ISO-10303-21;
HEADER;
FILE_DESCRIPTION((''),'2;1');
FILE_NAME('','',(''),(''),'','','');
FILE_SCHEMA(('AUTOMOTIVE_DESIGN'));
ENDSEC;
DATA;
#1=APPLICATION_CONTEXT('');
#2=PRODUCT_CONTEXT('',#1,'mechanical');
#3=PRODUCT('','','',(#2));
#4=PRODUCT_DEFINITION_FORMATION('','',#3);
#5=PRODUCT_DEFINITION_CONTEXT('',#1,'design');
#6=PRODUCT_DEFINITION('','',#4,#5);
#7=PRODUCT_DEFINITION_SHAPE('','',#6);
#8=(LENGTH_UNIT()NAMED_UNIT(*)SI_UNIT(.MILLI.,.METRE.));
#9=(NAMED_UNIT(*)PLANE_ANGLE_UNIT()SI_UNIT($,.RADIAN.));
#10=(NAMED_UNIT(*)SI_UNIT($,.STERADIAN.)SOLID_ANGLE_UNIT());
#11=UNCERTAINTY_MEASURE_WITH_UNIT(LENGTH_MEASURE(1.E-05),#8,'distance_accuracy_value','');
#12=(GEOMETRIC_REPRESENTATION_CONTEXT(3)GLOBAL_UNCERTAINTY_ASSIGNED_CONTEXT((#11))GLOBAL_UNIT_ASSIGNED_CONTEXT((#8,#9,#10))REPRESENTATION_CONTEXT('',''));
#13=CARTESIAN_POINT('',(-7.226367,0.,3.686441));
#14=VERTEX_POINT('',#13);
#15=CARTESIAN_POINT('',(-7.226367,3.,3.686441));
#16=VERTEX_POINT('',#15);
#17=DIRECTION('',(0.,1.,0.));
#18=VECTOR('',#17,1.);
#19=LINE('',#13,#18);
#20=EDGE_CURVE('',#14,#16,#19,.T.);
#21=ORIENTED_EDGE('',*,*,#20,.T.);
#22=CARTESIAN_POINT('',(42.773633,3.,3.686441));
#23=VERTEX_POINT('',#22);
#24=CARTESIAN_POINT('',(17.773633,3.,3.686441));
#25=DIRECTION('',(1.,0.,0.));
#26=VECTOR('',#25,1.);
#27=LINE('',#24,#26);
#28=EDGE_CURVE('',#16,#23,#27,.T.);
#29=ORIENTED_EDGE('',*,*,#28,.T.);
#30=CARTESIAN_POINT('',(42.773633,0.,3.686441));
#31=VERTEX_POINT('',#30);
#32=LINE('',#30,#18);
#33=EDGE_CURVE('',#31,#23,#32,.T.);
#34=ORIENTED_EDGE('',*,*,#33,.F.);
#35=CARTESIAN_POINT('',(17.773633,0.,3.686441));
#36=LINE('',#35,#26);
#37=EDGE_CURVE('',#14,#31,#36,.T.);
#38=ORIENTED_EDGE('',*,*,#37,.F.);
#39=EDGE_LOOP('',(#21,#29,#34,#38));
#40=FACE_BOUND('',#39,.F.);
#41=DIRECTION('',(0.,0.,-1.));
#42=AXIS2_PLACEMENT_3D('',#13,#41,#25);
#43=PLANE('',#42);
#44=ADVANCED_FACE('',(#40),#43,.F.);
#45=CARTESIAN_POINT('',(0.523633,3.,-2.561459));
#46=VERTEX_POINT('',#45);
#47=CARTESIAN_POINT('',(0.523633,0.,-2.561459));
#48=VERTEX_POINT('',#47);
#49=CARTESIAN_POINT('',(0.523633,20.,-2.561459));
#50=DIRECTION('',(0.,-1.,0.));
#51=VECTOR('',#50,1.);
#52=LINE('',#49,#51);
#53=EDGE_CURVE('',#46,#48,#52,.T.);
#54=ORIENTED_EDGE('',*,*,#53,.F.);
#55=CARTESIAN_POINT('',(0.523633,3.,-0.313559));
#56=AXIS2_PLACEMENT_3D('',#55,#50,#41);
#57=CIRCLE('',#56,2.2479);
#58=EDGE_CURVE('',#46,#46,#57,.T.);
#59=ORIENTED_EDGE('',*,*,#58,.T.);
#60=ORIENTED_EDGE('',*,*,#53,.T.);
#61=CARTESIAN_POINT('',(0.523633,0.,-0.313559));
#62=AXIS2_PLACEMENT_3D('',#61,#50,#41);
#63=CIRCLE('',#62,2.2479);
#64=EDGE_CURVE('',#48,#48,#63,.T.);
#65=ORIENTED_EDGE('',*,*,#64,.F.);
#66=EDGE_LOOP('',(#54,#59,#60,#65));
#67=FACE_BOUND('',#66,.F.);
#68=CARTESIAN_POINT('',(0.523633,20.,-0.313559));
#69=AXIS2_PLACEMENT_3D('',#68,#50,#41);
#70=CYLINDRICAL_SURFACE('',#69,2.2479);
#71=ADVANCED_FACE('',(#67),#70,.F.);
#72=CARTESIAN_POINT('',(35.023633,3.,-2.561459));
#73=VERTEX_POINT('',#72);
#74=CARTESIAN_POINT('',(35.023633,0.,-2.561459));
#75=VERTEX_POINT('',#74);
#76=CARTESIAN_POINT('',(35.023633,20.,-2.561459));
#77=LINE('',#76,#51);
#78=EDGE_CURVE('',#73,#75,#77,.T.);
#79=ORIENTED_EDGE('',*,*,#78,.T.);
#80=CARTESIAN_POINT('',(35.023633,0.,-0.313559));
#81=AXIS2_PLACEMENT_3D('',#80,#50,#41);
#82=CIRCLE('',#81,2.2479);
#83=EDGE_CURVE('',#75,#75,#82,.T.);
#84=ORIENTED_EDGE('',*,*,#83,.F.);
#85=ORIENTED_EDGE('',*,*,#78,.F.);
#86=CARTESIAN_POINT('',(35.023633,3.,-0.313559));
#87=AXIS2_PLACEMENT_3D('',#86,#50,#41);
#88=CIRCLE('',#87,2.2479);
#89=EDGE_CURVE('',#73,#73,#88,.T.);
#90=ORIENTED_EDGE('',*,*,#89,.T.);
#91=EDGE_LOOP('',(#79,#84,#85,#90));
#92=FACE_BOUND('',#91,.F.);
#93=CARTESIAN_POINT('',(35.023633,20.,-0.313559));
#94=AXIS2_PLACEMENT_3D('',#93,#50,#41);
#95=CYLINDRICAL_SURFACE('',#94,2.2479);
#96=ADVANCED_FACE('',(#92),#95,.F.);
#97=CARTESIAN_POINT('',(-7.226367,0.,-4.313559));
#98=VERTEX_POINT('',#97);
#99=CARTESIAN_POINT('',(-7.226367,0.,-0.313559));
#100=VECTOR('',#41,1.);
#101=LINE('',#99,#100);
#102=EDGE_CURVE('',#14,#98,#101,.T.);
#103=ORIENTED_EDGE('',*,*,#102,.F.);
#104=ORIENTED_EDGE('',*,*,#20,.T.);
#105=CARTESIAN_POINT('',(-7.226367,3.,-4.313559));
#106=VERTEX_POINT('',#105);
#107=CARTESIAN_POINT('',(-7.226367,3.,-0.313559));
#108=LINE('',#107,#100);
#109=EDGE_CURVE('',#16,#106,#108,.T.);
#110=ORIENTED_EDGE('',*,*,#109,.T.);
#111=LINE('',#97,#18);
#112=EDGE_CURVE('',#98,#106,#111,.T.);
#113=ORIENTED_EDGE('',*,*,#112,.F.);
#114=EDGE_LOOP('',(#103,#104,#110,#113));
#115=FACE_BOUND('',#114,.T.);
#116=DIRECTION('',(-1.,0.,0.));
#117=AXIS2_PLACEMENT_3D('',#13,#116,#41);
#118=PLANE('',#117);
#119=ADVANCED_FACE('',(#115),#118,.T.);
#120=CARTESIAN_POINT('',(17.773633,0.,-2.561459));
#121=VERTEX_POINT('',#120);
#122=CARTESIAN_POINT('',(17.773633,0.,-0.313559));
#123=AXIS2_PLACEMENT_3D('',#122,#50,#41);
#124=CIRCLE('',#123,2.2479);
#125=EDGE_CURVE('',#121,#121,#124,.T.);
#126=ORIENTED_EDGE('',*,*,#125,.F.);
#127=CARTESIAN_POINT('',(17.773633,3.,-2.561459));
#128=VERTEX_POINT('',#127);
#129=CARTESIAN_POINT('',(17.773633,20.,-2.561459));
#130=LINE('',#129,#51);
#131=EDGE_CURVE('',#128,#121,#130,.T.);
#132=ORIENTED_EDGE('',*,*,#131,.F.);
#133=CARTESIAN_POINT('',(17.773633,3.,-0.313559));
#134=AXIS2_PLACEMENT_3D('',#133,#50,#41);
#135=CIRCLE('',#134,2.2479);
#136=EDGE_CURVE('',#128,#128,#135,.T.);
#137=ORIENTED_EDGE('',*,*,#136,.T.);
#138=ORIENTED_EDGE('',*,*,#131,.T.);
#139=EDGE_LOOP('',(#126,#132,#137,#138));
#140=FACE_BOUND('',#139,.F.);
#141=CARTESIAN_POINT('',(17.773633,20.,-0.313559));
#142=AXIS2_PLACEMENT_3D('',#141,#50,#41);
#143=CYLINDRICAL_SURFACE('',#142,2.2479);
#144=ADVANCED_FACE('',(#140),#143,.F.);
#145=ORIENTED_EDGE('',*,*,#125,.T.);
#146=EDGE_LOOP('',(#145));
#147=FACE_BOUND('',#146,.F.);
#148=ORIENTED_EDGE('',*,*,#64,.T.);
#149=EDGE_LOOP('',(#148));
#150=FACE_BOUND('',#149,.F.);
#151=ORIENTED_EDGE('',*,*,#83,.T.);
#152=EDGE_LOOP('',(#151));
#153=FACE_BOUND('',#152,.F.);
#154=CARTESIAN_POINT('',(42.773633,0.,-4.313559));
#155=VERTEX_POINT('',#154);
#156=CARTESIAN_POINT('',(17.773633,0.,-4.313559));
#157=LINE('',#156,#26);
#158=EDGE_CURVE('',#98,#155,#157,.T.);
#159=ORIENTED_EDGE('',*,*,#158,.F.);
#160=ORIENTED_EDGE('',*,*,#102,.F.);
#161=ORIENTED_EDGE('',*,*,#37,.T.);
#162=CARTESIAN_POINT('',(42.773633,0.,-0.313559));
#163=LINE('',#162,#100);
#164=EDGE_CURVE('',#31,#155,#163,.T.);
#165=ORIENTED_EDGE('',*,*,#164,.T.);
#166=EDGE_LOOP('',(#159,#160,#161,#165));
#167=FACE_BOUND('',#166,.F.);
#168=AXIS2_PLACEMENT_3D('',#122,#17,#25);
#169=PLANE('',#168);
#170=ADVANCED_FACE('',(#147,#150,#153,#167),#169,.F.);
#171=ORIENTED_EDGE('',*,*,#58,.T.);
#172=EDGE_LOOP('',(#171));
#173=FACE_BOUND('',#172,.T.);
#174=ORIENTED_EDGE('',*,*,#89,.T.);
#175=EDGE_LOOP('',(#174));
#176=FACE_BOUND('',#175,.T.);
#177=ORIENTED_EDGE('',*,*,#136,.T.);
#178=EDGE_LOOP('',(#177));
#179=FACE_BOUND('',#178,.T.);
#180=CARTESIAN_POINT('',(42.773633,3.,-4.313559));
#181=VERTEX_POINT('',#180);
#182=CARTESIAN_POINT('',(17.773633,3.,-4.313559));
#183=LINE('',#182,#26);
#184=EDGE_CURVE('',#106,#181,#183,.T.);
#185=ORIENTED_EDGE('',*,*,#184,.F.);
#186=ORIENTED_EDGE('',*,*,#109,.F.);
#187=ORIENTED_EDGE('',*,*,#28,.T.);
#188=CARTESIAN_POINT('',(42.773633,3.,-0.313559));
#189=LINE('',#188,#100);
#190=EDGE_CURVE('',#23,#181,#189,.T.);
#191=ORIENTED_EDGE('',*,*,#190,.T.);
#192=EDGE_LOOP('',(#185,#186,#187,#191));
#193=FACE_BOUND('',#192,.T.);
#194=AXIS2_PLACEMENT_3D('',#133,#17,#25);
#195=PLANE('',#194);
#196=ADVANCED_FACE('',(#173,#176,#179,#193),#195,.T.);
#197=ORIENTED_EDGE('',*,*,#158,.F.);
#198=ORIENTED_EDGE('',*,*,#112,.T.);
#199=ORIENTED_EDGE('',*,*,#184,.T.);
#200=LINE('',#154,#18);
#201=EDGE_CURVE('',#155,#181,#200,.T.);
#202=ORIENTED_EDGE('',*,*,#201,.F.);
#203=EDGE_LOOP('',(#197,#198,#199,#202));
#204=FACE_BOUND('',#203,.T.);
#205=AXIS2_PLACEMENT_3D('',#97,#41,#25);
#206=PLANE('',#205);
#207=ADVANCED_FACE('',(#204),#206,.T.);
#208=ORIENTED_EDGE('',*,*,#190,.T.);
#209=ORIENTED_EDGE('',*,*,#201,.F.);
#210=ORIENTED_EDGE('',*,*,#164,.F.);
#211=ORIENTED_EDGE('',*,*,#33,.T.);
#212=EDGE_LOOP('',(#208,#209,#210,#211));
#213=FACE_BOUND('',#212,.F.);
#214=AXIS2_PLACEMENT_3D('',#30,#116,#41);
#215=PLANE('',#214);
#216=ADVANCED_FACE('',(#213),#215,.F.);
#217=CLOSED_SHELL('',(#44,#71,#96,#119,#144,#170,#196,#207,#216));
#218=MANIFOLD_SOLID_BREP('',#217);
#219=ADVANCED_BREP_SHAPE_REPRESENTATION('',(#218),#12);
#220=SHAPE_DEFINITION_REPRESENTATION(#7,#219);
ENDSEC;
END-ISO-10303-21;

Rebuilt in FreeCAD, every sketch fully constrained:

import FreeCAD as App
import Part
import Sketcher

V = App.Vector
Q = App.Units.Quantity

doc = App.newDocument("Part")
body = doc.addObject("PartDesign::Body", "Body")

# Sketch on XZ plane
sketch1 = body.newObject("Sketcher::SketchObject", "Sketch")
sketch1.AttachmentSupport = (doc.getObject("XZ_Plane"), [""])
sketch1.MapMode = "FlatFace"
sketch1.addGeometry([
    Part.LineSegment(V(-7.226367, -4.313559, 0), V(-7.226367, 3.686441, 0)),
    Part.LineSegment(V(-7.226367, 3.686441, 0), V(42.773633, 3.686441, 0)),
    Part.LineSegment(V(42.773633, 3.686441, 0), V(42.773633, -4.313559, 0)),
    Part.LineSegment(V(42.773633, -4.313559, 0), V(-7.226367, -4.313559, 0)),
], False)
sketch1.addConstraint([
    Sketcher.Constraint("Coincident", 0, 2, 1, 1),
    Sketcher.Constraint("Coincident", 1, 2, 2, 1),
    Sketcher.Constraint("Coincident", 2, 2, 3, 1),
    Sketcher.Constraint("Coincident", 3, 2, 0, 1),
    Sketcher.Constraint("Vertical", 0),
    Sketcher.Constraint("Horizontal", 1),
    Sketcher.Constraint("Vertical", 2),
    Sketcher.Constraint("Horizontal", 3),
    Sketcher.Constraint("DistanceX", 1, 1, 1, 2, Q("50 mm")),
    Sketcher.Constraint("DistanceY", 0, 1, 0, 2, Q("8 mm")),
    Sketcher.Constraint("DistanceY", -1, 1, 0, 2, Q("3.686441 mm")),
    Sketcher.Constraint("DistanceX", 0, 2, -1, 1, Q("7.226367 mm")),
])
pad1 = body.newObject("PartDesign::Pad", "Pad")
pad1.Profile = sketch1
pad1.Length = 3
pad1.Reversed = True

# Sketch on XZ plane
sketch2 = body.newObject("Sketcher::SketchObject", "Sketch001")
sketch2.AttachmentSupport = (doc.getObject("XZ_Plane"), [""])
sketch2.MapMode = "FlatFace"
sketch2.AttachmentOffset = App.Placement(V(0, 0, -3), App.Rotation())
sketch2.addGeometry([
    Part.Circle(V(0.523633, -0.313559, 0), V(0, 0, 1), 2.2479),
    Part.Circle(V(35.023633, -0.313559, 0), V(0, 0, 1), 2.2479),
    Part.Circle(V(17.773633, -0.313559, 0), V(0, 0, 1), 2.2479),
], False)
sketch2.addConstraint([
    Sketcher.Constraint("Equal", 0, 1),
    Sketcher.Constraint("Equal", 1, 2),
    Sketcher.Constraint("Horizontal", 0, 3, 1, 3),
    Sketcher.Constraint("Horizontal", 1, 3, 2, 3),
    Sketcher.Constraint("Diameter", 0, Q("4.4958 mm")),
    Sketcher.Constraint("DistanceX", 0, 3, 1, 3, Q("34.5 mm")),
    Sketcher.Constraint("DistanceX", 2, 3, 1, 3, Q("17.25 mm")),
    Sketcher.Constraint("DistanceY", 0, 3, -1, 1, Q("0.313559 mm")),
    Sketcher.Constraint("DistanceX", -1, 1, 0, 3, Q("0.523633 mm")),
])
doc.recompute()
hole = body.newObject("PartDesign::Hole", "Hole")
hole.Profile = sketch2
hole.ThreadType = "None"
hole.Diameter = 4.4958
hole.DepthType = "Dimension"
hole.Depth = 17
hole.DrillPoint = "Angled"
hole.DrillPointAngle = 118
hole.Reversed = True

doc.recompute()
